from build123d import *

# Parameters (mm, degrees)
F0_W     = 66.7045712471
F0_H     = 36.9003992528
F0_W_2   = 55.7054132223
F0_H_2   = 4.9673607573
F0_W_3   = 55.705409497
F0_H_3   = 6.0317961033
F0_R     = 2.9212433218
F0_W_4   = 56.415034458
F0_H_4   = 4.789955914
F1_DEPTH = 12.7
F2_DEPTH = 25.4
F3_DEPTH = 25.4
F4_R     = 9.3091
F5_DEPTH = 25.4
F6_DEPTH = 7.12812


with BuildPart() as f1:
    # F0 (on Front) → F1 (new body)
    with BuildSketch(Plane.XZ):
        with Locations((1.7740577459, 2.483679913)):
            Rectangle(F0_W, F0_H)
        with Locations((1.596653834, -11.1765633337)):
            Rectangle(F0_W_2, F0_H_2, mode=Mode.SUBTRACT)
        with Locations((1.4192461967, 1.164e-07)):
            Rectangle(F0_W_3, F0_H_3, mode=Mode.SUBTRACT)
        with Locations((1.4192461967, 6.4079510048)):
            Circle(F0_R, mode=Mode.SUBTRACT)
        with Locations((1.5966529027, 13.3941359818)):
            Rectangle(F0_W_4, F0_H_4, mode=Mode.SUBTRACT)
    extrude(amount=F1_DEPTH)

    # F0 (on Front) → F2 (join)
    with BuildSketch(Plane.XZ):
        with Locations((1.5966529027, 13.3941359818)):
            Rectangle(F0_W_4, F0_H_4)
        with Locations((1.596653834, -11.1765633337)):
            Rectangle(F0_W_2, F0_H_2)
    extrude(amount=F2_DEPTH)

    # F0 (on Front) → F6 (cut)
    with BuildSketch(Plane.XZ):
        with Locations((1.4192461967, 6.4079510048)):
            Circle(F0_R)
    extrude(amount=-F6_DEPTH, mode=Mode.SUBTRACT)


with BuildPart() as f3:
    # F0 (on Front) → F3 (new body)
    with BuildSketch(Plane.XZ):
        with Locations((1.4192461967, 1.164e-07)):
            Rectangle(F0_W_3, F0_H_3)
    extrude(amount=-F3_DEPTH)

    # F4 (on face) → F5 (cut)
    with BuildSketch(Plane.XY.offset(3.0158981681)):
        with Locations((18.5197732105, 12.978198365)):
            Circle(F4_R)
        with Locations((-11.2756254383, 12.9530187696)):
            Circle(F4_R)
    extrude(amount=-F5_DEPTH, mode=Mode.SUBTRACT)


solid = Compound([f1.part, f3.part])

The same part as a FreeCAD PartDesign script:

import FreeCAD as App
import Part
import Sketcher

V = App.Vector
Q = App.Units.Quantity


def add_polygon(sketch, points):
    """Adds a closed chain of lines whose ends are joined by coincident constraints."""
    first, n = sketch.GeometryCount, len(points)
    for a, b in zip(points, points[1:] + points[:1]):
        sketch.addGeometry(Part.LineSegment(App.Vector(*a, 0), App.Vector(*b, 0)), False)
    for i in range(n):
        sketch.addConstraint(Sketcher.Constraint("Coincident", first + i, 2, first + (i + 1) % n, 1))

doc = App.newDocument("Part")
body = doc.addObject("PartDesign::Body", "Body")

# Sketch on XZ plane
sketch1 = body.newObject("Sketcher::SketchObject", "Sketch")
sketch1.AttachmentSupport = (doc.getObject("XZ_Plane"), [""])
sketch1.MapMode = "FlatFace"
add_polygon(sketch1, [(-31.6, 20.9), (-31.6, -16), (35.1, -16), (35.1, 20.9)])  # lines 0-3
add_polygon(sketch1, [(29.3, -3), (-26.4, -3), (-26.4, 3), (29.3, 3)])  # lines 4-7
add_polygon(sketch1, [(29.4, -13.7), (-26.3, -13.7), (-26.3, -8.7), (29.4, -8.7)])  # lines 8-11
sketch1.addGeometry(Part.Circle(V(1.4, 6.4, 0), V(0, 0, 1), 2.9), False)  # 12
add_polygon(sketch1, [(29.8, 11), (-26.6, 11), (-26.6, 15.8), (29.8, 15.8)])  # lines 13-16
sketch1.addConstraint(Sketcher.Constraint("Vertical", 0))
sketch1.addConstraint(Sketcher.Constraint("Horizontal", 1))
sketch1.addConstraint(Sketcher.Constraint("Vertical", 2))
sketch1.addConstraint(Sketcher.Constraint("Horizontal", 3))
sketch1.addConstraint(Sketcher.Constraint("Horizontal", 4))
sketch1.addConstraint(Sketcher.Constraint("Vertical", 5))
sketch1.addConstraint(Sketcher.Constraint("Horizontal", 6))
sketch1.addConstraint(Sketcher.Constraint("Vertical", 7))
sketch1.addConstraint(Sketcher.Constraint("Horizontal", 8))
sketch1.addConstraint(Sketcher.Constraint("Vertical", 9))
sketch1.addConstraint(Sketcher.Constraint("Horizontal", 10))
sketch1.addConstraint(Sketcher.Constraint("Vertical", 11))
sketch1.addConstraint(Sketcher.Constraint("Horizontal", 13))
sketch1.addConstraint(Sketcher.Constraint("Vertical", 14))
sketch1.addConstraint(Sketcher.Constraint("Horizontal", 15))
sketch1.addConstraint(Sketcher.Constraint("Vertical", 16))
sketch1.addConstraint(Sketcher.Constraint("Diameter", 12, 5.842487))
sketch1.addConstraint(Sketcher.Constraint("DistanceY", 0, 2, 0, 1, 36.900399))
sketch1.addConstraint(Sketcher.Constraint("DistanceX", 1, 1, 1, 2, 66.704571))
sketch1.addConstraint(Sketcher.Constraint("DistanceX", 4, 2, 4, 1, 55.705409))
sketch1.addConstraint(Sketcher.Constraint("DistanceY", 9, 1, 9, 2, 4.967361))
sketch1.addConstraint(Sketcher.Constraint("DistanceY", -1, 1, 5, 2, 3.015898))
sketch1.addConstraint(Sketcher.Constraint("DistanceX", 4, 2, 1, 2, 61.559802))
sketch1.addConstraint(Sketcher.Constraint("DistanceX", 8, 2, 12, 3, 27.675299))
sketch1.addConstraint(Sketcher.Constraint("DistanceY", 8, 2, 13, 2, 24.659402))
sketch1.addConstraint(Sketcher.Constraint("DistanceX", 8, 2, 8, 1, 55.705413))
sketch1.addConstraint(Sketcher.Constraint("DistanceX", 13, 2, 13, 1, 56.415034))
sketch1.addConstraint(Sketcher.Constraint("DistanceY", 5, 1, 5, 2, 6.031796))
sketch1.addConstraint(Sketcher.Constraint("DistanceY", 14, 1, 14, 2, 4.789956))
sketch1.addConstraint(Sketcher.Constraint("DistanceY", -1, 1, 12, 3, 6.407951))
sketch1.addConstraint(Sketcher.Constraint("DistanceY", 0, 2, -1, 1, 15.96652))
sketch1.addConstraint(Sketcher.Constraint("DistanceX", 4, 2, -1, 1, 26.433459))
sketch1.addConstraint(Sketcher.Constraint("DistanceX", -1, 1, 10, 2, 29.44936))
sketch1.addConstraint(Sketcher.Constraint("DistanceY", -1, 1, 13, 2, 10.999158))
sketch1.addConstraint(Sketcher.Constraint("DistanceX", -1, 1, 15, 2, 29.80417))
pad1 = body.newObject("PartDesign::Pad", "Pad")
pad1.Profile = sketch1
pad1.Length = Q("0.5 in")

# Sketch on XZ plane
sketch2 = body.newObject("Sketcher::SketchObject", "Sketch001")
sketch2.AttachmentSupport = (doc.getObject("XZ_Plane"), [""])
sketch2.MapMode = "FlatFace"
add_polygon(sketch2, [(-26.6, 15.8), (-26.6, 11), (29.8, 11), (29.8, 15.8)])  # lines 0-3
add_polygon(sketch2, [(-26.3, -8.7), (-26.3, -13.7), (29.4, -13.7), (29.4, -8.7)])  # lines 4-7
sketch2.addConstraint(Sketcher.Constraint("Vertical", 0))
sketch2.addConstraint(Sketcher.Constraint("Horizontal", 1))
sketch2.addConstraint(Sketcher.Constraint("Vertical", 2))
sketch2.addConstraint(Sketcher.Constraint("Horizontal", 3))
sketch2.addConstraint(Sketcher.Constraint("Vertical", 4))
sketch2.addConstraint(Sketcher.Constraint("Horizontal", 5))
sketch2.addConstraint(Sketcher.Constraint("Vertical", 6))
sketch2.addConstraint(Sketcher.Constraint("Horizontal", 7))
sketch2.addConstraint(Sketcher.Constraint("DistanceY", 4, 2, 4, 1, 4.967361))
sketch2.addConstraint(Sketcher.Constraint("DistanceY", 4, 2, 0, 2, 24.659402))
sketch2.addConstraint(Sketcher.Constraint("DistanceX", 1, 1, 1, 2, 56.415034))
sketch2.addConstraint(Sketcher.Constraint("DistanceX", 5, 1, 5, 2, 55.705413))
sketch2.addConstraint(Sketcher.Constraint("DistanceY", 0, 2, 0, 1, 4.789956))
sketch2.addConstraint(Sketcher.Constraint("DistanceY", -1, 1, 0, 2, 10.999158))
sketch2.addConstraint(Sketcher.Constraint("DistanceX", -1, 1, 1, 2, 29.80417))
sketch2.addConstraint(Sketcher.Constraint("DistanceX", -1, 1, 5, 2, 29.44936))
pad2 = body.newObject("PartDesign::Pad", "Pad001")
pad2.Profile = sketch2
pad2.Length = Q("1 in")

# Sketch on XZ plane
sketch3 = body.newObject("Sketcher::SketchObject", "Sketch002")
sketch3.AttachmentSupport = (doc.getObject("XZ_Plane"), [""])
sketch3.MapMode = "FlatFace"
sketch3.addGeometry(Part.Circle(V(1.4, 6.4, 0), V(0, 0, 1), 2.9), False)
sketch3.addConstraint(Sketcher.Constraint("Diameter", 0, 5.842487))
sketch3.addConstraint(Sketcher.Constraint("DistanceY", -1, 1, 0, 3, 6.407951))
sketch3.addConstraint(Sketcher.Constraint("DistanceX", -1, 1, 0, 3, 1.419246))
pocket1 = body.newObject("PartDesign::Pocket", "Pocket")
pocket1.Profile = sketch3
pocket1.Length = 7.12812
body2 = doc.addObject("PartDesign::Body", "Body001")

# Sketch on XZ plane
sketch4 = body2.newObject("Sketcher::SketchObject", "Sketch003")
sketch4.AttachmentSupport = (doc.getObject("XZ_Plane001"), [""])
sketch4.MapMode = "FlatFace"
add_polygon(sketch4, [(-26, 3), (-26, -3), (29, -3), (29, 3)])  # lines 0-3
sketch4.addConstraint(Sketcher.Constraint("Vertical", 0))
sketch4.addConstraint(Sketcher.Constraint("Horizontal", 1))
sketch4.addConstraint(Sketcher.Constraint("Vertical", 2))
sketch4.addConstraint(Sketcher.Constraint("Horizontal", 3))
sketch4.addConstraint(Sketcher.Constraint("DistanceX", 1, 1, 1, 2, 55.705409))
sketch4.addConstraint(Sketcher.Constraint("DistanceY", -1, 1, 2, 2, 3.015898))
sketch4.addConstraint(Sketcher.Constraint("DistanceY", 0, 2, 0, 1, 6.031796))
sketch4.addConstraint(Sketcher.Constraint("DistanceX", 0, 2, -1, 1, 26.433459))
pad3 = body2.newObject("PartDesign::Pad", "Pad002")
pad3.Profile = sketch4
pad3.Length = Q("1 in")
pad3.Reversed = True

# Sketch on XY plane
sketch5 = body2.newObject("Sketcher::SketchObject", "Sketch004")
sketch5.AttachmentSupport = (doc.getObject("XY_Plane001"), [""])
sketch5.MapMode = "FlatFace"
sketch5.AttachmentOffset = App.Placement(V(0, 0, 3.015898), App.Rotation())
sketch5.addGeometry(Part.Circle(V(19, 13, 0), V(0, 0, 1), 9), False)
sketch5.addGeometry(Part.Circle(V(-11, 13, 0), V(0, 0, 1), 9), False)
sketch5.addConstraint(Sketcher.Constraint("Equal", 0, 1))
sketch5.addConstraint(Sketcher.Constraint("Diameter", 0, Q("0.733 in")))
sketch5.addConstraint(Sketcher.Constraint("DistanceY", -1, 1, 0, 3, 12.978198))
sketch5.addConstraint(Sketcher.Constraint("DistanceX", 1, 3, 0, 3, 29.795399))
sketch5.addConstraint(Sketcher.Constraint("DistanceY", -1, 1, 1, 3, 12.953019))
sketch5.addConstraint(Sketcher.Constraint("DistanceX", -1, 1, 0, 3, 18.519773))
pocket2 = body2.newObject("PartDesign::Pocket", "Pocket001")
pocket2.Profile = sketch5
pocket2.Length = Q("1 in")

doc.recompute()
